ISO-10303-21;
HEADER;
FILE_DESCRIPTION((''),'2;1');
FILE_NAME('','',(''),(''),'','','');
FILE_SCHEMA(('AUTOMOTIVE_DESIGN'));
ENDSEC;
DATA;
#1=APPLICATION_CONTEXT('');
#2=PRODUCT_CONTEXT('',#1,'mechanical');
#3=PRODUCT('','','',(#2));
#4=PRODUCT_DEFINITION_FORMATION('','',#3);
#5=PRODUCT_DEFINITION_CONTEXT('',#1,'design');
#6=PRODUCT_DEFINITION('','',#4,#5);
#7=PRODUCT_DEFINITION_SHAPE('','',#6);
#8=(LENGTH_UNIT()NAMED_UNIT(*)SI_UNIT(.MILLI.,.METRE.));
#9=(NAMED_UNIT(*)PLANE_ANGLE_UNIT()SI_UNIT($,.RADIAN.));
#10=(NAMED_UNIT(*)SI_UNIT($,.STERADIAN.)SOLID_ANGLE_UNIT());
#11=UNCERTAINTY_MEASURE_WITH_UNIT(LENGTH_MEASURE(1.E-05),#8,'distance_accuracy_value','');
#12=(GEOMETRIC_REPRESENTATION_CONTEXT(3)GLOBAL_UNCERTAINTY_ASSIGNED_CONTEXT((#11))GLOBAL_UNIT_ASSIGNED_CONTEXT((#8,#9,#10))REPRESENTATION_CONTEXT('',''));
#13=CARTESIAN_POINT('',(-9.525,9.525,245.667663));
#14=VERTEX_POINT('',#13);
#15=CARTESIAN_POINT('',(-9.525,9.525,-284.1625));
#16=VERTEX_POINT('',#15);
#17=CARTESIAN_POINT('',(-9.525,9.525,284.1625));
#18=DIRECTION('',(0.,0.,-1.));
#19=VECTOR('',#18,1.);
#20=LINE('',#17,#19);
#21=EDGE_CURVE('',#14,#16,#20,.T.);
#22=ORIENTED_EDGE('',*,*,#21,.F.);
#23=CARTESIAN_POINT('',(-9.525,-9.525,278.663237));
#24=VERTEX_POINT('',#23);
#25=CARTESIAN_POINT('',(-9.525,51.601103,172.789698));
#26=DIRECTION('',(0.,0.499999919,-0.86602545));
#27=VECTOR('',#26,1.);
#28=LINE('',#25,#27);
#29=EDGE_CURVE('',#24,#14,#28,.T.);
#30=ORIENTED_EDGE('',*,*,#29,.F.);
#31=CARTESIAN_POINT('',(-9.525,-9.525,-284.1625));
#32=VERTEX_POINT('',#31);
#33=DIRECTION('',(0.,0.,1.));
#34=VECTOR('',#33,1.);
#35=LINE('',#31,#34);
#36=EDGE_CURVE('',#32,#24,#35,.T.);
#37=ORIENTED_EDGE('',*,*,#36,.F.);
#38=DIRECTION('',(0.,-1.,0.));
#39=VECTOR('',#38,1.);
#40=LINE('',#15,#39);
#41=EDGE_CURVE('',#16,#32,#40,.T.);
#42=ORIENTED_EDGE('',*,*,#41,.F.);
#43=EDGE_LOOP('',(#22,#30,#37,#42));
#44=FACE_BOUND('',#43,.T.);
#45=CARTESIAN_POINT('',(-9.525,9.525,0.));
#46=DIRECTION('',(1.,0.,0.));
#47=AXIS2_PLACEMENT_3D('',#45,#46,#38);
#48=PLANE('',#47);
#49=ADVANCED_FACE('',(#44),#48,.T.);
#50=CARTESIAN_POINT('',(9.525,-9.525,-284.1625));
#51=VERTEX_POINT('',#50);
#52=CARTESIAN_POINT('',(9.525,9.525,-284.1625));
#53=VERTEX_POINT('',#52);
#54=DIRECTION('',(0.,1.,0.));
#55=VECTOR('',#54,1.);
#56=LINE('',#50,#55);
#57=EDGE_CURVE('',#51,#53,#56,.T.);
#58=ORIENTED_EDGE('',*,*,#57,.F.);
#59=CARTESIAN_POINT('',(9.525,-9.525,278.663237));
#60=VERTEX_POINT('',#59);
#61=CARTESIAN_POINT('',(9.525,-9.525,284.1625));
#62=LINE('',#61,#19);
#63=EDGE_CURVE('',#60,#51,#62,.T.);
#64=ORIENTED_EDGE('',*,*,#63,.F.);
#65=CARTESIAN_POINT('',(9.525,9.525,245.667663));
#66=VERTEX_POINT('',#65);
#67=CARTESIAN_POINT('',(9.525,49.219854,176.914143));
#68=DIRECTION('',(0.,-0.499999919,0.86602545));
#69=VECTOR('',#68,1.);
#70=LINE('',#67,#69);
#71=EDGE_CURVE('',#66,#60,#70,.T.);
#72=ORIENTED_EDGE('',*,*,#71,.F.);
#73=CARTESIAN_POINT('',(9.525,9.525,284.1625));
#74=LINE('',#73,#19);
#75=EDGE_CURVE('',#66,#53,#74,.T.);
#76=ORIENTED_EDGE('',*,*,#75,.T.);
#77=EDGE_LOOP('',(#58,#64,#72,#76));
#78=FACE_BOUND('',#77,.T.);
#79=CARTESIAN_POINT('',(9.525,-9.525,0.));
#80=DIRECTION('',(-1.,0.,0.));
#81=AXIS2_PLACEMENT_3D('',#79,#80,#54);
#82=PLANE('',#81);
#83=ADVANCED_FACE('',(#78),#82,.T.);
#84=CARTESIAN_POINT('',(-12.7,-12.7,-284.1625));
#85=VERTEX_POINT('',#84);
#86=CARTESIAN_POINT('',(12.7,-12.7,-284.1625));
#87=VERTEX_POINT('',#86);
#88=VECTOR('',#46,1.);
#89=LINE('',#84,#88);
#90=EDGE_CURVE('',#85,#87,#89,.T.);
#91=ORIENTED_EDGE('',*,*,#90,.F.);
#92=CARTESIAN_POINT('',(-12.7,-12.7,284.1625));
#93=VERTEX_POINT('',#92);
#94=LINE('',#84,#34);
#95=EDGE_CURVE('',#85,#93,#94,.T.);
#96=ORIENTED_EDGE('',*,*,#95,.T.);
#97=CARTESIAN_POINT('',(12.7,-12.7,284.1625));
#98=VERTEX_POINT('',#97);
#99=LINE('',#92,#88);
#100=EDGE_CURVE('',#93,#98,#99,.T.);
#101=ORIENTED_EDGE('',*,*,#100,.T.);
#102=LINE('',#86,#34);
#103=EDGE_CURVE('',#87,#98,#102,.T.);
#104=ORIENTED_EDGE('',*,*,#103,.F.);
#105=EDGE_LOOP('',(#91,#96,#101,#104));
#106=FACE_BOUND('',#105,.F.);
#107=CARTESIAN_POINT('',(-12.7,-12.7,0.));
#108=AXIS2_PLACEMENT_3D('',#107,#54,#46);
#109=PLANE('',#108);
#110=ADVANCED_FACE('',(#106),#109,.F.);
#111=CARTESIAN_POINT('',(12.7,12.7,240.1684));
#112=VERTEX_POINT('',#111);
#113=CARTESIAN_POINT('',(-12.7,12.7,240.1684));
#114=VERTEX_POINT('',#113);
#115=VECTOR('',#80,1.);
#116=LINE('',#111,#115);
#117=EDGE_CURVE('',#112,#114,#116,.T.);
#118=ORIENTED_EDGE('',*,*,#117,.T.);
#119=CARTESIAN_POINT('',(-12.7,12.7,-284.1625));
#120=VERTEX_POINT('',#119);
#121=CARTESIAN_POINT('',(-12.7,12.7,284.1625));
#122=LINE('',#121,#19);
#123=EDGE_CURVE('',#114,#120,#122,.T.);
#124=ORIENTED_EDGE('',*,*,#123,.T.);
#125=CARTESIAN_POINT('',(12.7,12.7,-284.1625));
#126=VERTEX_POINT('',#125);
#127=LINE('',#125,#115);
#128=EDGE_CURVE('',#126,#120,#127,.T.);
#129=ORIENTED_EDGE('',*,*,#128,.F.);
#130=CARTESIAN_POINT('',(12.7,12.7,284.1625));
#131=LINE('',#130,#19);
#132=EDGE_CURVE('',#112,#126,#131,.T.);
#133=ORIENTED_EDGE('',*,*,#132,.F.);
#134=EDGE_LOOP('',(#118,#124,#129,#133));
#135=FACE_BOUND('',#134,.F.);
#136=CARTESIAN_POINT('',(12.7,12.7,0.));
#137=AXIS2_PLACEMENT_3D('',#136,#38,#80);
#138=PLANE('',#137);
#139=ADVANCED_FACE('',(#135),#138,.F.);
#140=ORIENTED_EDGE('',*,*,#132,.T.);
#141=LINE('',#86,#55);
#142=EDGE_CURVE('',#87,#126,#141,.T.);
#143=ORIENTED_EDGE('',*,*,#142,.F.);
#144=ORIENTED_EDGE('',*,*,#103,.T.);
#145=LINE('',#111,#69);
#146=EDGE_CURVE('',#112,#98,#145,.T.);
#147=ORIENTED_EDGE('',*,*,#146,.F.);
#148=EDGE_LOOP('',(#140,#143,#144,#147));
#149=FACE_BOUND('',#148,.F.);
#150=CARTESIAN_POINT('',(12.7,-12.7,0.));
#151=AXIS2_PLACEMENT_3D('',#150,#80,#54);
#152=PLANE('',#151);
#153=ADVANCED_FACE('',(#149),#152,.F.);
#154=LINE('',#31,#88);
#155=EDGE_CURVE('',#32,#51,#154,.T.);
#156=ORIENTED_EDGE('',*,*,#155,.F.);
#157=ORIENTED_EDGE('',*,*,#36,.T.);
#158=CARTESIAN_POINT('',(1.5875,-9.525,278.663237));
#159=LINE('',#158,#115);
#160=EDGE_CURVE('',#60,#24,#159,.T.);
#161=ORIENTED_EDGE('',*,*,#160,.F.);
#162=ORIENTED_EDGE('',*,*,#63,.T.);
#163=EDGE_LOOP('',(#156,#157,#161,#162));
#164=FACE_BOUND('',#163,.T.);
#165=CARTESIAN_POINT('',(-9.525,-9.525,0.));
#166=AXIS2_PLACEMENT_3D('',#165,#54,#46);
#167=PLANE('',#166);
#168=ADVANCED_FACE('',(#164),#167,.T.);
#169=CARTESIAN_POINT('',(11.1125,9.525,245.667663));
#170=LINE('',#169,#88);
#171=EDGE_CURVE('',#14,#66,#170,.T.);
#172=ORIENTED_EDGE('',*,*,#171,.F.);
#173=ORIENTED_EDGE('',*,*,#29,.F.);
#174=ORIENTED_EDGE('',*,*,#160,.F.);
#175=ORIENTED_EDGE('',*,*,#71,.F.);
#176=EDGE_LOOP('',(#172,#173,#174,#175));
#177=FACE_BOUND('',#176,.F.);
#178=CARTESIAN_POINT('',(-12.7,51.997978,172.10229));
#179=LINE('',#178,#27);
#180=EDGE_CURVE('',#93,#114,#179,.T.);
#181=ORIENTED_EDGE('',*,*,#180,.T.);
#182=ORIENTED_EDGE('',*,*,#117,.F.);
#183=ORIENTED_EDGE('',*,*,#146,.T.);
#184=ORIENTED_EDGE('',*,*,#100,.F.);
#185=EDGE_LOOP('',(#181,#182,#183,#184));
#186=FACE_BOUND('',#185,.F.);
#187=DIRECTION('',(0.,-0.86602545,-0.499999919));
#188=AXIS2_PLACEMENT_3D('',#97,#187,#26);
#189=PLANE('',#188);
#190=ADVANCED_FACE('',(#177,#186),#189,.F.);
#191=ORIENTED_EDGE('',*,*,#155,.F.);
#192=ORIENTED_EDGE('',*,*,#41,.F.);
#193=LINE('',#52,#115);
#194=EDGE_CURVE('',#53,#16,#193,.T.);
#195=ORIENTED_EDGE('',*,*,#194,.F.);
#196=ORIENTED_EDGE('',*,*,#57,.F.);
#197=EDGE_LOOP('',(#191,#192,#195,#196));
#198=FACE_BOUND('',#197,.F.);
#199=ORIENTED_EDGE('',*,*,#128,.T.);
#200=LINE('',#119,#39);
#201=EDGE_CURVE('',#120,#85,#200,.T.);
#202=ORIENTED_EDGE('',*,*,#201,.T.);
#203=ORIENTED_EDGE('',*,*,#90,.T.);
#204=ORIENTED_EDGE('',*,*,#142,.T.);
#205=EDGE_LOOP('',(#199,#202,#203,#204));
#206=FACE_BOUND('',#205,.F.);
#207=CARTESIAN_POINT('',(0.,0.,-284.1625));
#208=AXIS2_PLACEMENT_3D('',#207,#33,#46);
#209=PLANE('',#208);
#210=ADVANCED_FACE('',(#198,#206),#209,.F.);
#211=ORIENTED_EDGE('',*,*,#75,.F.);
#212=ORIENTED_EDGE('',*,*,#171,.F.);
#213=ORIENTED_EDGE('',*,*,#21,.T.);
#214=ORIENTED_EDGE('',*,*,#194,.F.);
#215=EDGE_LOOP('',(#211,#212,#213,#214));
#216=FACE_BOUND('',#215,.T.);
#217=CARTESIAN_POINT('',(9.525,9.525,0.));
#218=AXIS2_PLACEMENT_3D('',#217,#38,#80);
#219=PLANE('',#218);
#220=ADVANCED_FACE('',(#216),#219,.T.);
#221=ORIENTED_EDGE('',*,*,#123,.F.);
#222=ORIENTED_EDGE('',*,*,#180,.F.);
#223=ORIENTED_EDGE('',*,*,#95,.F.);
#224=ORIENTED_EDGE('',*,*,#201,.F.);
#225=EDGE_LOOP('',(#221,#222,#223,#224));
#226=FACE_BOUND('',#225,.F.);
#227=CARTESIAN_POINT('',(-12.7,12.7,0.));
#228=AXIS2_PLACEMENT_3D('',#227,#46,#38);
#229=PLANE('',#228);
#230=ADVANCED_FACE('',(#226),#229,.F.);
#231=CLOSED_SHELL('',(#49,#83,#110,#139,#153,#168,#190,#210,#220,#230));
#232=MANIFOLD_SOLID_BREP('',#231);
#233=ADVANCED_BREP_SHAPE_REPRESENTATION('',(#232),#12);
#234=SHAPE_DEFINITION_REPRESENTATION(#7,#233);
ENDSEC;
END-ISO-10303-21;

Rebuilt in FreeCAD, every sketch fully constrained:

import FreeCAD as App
import Part
import Sketcher

V = App.Vector
Q = App.Units.Quantity

doc = App.newDocument("Part")
body = doc.addObject("PartDesign::Body", "Body")

# Sketch on XY plane
sketch1 = body.newObject("Sketcher::SketchObject", "Sketch")
sketch1.AttachmentSupport = (doc.getObject("XY_Plane"), [""])
sketch1.MapMode = "FlatFace"
sketch1.addGeometry(Part.LineSegment(V(-13, 13, 0), V(-13, -13, 0)), False)
sketch1.addGeometry(Part.LineSegment(V(-13, -13, 0), V(13, -13, 0)), False)
sketch1.addGeometry(Part.LineSegment(V(13, -13, 0), V(13, 13, 0)), False)
sketch1.addGeometry(Part.LineSegment(V(13, 13, 0), V(-13, 13, 0)), False)
sketch1.addGeometry(Part.LineSegment(V(10, -10, 0), V(-10, -10, 0)), False)
sketch1.addGeometry(Part.LineSegment(V(-10, -10, 0), V(-10, 10, 0)), False)
sketch1.addGeometry(Part.LineSegment(V(-10, 10, 0), V(10, 10, 0)), False)
sketch1.addGeometry(Part.LineSegment(V(10, 10, 0), V(10, -10, 0)), False)
sketch1.addConstraint(Sketcher.Constraint("Coincident", 0, 2, 1, 1))
sketch1.addConstraint(Sketcher.Constraint("Coincident", 1, 2, 2, 1))
sketch1.addConstraint(Sketcher.Constraint("Coincident", 2, 2, 3, 1))
sketch1.addConstraint(Sketcher.Constraint("Coincident", 3, 2, 0, 1))
sketch1.addConstraint(Sketcher.Constraint("Coincident", 4, 2, 5, 1))
sketch1.addConstraint(Sketcher.Constraint("Coincident", 5, 2, 6, 1))
sketch1.addConstraint(Sketcher.Constraint("Coincident", 6, 2, 7, 1))
sketch1.addConstraint(Sketcher.Constraint("Coincident", 7, 2, 4, 1))
sketch1.addConstraint(Sketcher.Constraint("Vertical", 0))
sketch1.addConstraint(Sketcher.Constraint("Horizontal", 1))
sketch1.addConstraint(Sketcher.Constraint("Vertical", 2))
sketch1.addConstraint(Sketcher.Constraint("Horizontal", 3))
sketch1.addConstraint(Sketcher.Constraint("Horizontal", 4))
sketch1.addConstraint(Sketcher.Constraint("Vertical", 5))
sketch1.addConstraint(Sketcher.Constraint("Horizontal", 6))
sketch1.addConstraint(Sketcher.Constraint("Vertical", 7))
sketch1.addConstraint(Sketcher.Constraint("Symmetric", 0, 2, 2, 2, -1, 1))
sketch1.addConstraint(Sketcher.Constraint("Symmetric", 4, 2, 6, 2, -1, 1))
sketch1.addConstraint(Sketcher.Constraint("Equal", 3, 0))
sketch1.addConstraint(Sketcher.Constraint("Equal", 6, 5))
sketch1.addConstraint(Sketcher.Constraint("DistanceX", 1, 1, 1, 2, Q("1 in")))
sketch1.addConstraint(Sketcher.Constraint("DistanceX", 0, 2, 4, 2, Q("0.125 in")))
pad1 = body.newObject("PartDesign::Pad", "Pad")
pad1.Profile = sketch1
pad1.Length = Q("22.375 in")
pad1.Midplane = True

# Sketch on YZ plane
sketch2 = body.newObject("Sketcher::SketchObject", "Sketch001")
sketch2.AttachmentSupport = (doc.getObject("YZ_Plane"), [""])
sketch2.MapMode = "FlatFace"
sketch2.AttachmentOffset = App.Placement(V(0, 0, 0.5 * 25.4), App.Rotation())
sketch2.addGeometry(Part.LineSegment(V(-13, 284, 0), V(13, 240, 0)), False)
sketch2.addGeometry(Part.LineSegment(V(13, 240, 0), V(13, 284, 0)), False)
sketch2.addGeometry(Part.LineSegment(V(13, 284, 0), V(-13, 284, 0)), False)
sketch2.addConstraint(Sketcher.Constraint("Coincident", 0, 2, 1, 1))
sketch2.addConstraint(Sketcher.Constraint("Coincident", 1, 2, 2, 1))
sketch2.addConstraint(Sketcher.Constraint("Coincident", 2, 2, 0, 1))
sketch2.addConstraint(Sketcher.Constraint("Vertical", 1))
sketch2.addConstraint(Sketcher.Constraint("Horizontal", 2))
sketch2.addConstraint(Sketcher.Constraint("DistanceX", 2, 2, 2, 1, Q("1 in")))
sketch2.addConstraint(Sketcher.Constraint("Distance", 0, Q("2 in")))
sketch2.addConstraint(Sketcher.Constraint("DistanceX", -1, 1, 0, 2, Q("0.5 in")))
sketch2.addConstraint(Sketcher.Constraint("DistanceY", -1, 1, 1, 2, Q("11.1875 in")))
pocket1 = body.newObject("PartDesign::Pocket", "Pocket")
pocket1.Profile = sketch2
pocket1.Type = "ThroughAll"

doc.recompute()
